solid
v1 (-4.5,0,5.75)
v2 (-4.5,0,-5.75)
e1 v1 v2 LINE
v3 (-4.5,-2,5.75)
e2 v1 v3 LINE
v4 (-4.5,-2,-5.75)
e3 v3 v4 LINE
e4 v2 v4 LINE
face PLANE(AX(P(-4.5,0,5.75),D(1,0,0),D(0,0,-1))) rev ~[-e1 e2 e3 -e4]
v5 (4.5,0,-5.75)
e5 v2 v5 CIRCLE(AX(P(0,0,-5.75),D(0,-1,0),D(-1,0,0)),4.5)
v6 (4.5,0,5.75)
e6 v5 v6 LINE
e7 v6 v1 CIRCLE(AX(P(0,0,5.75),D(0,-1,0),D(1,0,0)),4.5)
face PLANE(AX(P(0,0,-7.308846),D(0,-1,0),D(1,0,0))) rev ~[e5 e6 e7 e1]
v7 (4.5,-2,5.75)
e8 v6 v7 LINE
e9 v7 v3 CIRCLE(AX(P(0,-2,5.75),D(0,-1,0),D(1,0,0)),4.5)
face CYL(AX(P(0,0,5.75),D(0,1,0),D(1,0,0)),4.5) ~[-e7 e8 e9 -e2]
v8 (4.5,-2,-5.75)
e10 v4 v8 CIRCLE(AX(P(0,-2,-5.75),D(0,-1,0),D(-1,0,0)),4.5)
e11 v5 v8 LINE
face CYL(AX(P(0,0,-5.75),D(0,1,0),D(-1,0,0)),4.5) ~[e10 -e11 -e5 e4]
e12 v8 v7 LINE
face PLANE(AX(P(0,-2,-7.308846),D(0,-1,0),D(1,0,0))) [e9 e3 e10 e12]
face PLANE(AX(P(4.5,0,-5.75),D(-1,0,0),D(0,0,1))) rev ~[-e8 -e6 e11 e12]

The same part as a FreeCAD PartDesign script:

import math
import FreeCAD as App
import Part
import Sketcher
Q = App.Units.Quantity

doc = App.newDocument("Part")
body = doc.addObject("PartDesign::Body", "Body")

# Sketch on XZ plane
sketch1 = doc.addObject("Sketcher::SketchObject", "Sketch")
body.addObject(sketch1)
sketch1.AttachmentSupport = (doc.XZ_Plane, [""])
sketch1.MapMode = "FlatFace"
sketch1.addGeometry([
    Part.ArcOfCircle(Part.Circle(App.Vector(0, -5.8, 0), App.Vector(0, 0, 1), 4.5), math.radians(180), math.radians(360)),
    Part.LineSegment(App.Vector(4.5, -5.8, 0), App.Vector(4.5, 5.8, 0)),
    Part.ArcOfCircle(Part.Circle(App.Vector(0, 5.8, 0), App.Vector(0, 0, 1), 4.5), math.radians(0), math.radians(180)),
    Part.LineSegment(App.Vector(-4.5, 5.8, 0), App.Vector(-4.5, -5.8, 0)),
], False)
sketch1.addConstraint([
    Sketcher.Constraint("Tangent", 0, 2, 1, 1),
    Sketcher.Constraint("Tangent", 1, 2, 2, 1),
    Sketcher.Constraint("Tangent", 2, 2, 3, 1),
    Sketcher.Constraint("Tangent", 3, 2, 0, 1),
    Sketcher.Constraint("Vertical", 1),
    Sketcher.Constraint("Vertical", 3),
    Sketcher.Constraint("Symmetric", 0, 3, 2, 3, -1, 1),
    Sketcher.Constraint("Radius", 0, Q("4.5 mm")),
    Sketcher.Constraint("DistanceY", 1, 1, 1, 2, Q("11.5 mm")),
])
pad1 = doc.addObject("PartDesign::Pad", "Pad")
body.addObject(pad1)
pad1.Profile = sketch1
pad1.Length = 2

doc.recompute()
